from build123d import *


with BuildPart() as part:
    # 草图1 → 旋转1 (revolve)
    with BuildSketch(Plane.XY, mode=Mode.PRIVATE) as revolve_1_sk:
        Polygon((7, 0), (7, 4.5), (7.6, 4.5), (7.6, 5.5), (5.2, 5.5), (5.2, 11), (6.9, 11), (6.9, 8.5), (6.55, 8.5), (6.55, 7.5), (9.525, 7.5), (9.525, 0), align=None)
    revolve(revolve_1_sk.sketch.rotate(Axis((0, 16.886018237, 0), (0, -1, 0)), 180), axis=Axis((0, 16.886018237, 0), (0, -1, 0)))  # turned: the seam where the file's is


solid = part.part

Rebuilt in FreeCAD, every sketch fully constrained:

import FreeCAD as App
import Part
import Sketcher

V = App.Vector
Q = App.Units.Quantity

doc = App.newDocument("Part")
body = doc.addObject("PartDesign::Body", "Body")

sketch1 = body.newObject("Sketcher::SketchObject", "Sketch")
sketch1.AttachmentSupport = (doc.getObject("XY_Plane"), [""])
sketch1.MapMode = "FlatFace"
sketch1.addGeometry(Part.LineSegment(V(7, 4.5, 0), V(7, 0, 0)), False)
sketch1.addGeometry(Part.LineSegment(V(7, 0, 0), V(9.525, 0, 0)), False)
sketch1.addGeometry(Part.LineSegment(V(9.525, 0, 0), V(9.525, 7.5, 0)), False)
sketch1.addGeometry(Part.LineSegment(V(9.525, 7.5, 0), V(6.55, 7.5, 0)), False)
sketch1.addGeometry(Part.LineSegment(V(6.55, 7.5, 0), V(6.55, 8.5, 0)), False)
sketch1.addGeometry(Part.LineSegment(V(6.55, 8.5, 0), V(6.9, 8.5, 0)), False)
sketch1.addGeometry(Part.LineSegment(V(6.9, 8.5, 0), V(6.9, 11, 0)), False)
sketch1.addGeometry(Part.LineSegment(V(6.9, 11, 0), V(5.2, 11, 0)), False)
sketch1.addGeometry(Part.LineSegment(V(5.2, 11, 0), V(5.2, 5.5, 0)), False)
sketch1.addGeometry(Part.LineSegment(V(5.2, 5.5, 0), V(7.6, 5.5, 0)), False)
sketch1.addGeometry(Part.LineSegment(V(7.6, 5.5, 0), V(7.6, 4.5, 0)), False)
sketch1.addGeometry(Part.LineSegment(V(7.6, 4.5, 0), V(7, 4.5, 0)), False)
sketch1.addConstraint(Sketcher.Constraint("Coincident", 0, 2, 1, 1))
sketch1.addConstraint(Sketcher.Constraint("Coincident", 1, 2, 2, 1))
sketch1.addConstraint(Sketcher.Constraint("Coincident", 2, 2, 3, 1))
sketch1.addConstraint(Sketcher.Constraint("Coincident", 3, 2, 4, 1))
sketch1.addConstraint(Sketcher.Constraint("Coincident", 4, 2, 5, 1))
sketch1.addConstraint(Sketcher.Constraint("Coincident", 5, 2, 6, 1))
sketch1.addConstraint(Sketcher.Constraint("Coincident", 6, 2, 7, 1))
sketch1.addConstraint(Sketcher.Constraint("Coincident", 7, 2, 8, 1))
sketch1.addConstraint(Sketcher.Constraint("Coincident", 8, 2, 9, 1))
sketch1.addConstraint(Sketcher.Constraint("Coincident", 9, 2, 10, 1))
sketch1.addConstraint(Sketcher.Constraint("Coincident", 10, 2, 11, 1))
sketch1.addConstraint(Sketcher.Constraint("Coincident", 11, 2, 0, 1))
sketch1.addConstraint(Sketcher.Constraint("Vertical", 0))
sketch1.addConstraint(Sketcher.Constraint("Horizontal", 1))
sketch1.addConstraint(Sketcher.Constraint("Vertical", 2))
sketch1.addConstraint(Sketcher.Constraint("Horizontal", 3))
sketch1.addConstraint(Sketcher.Constraint("Vertical", 4))
sketch1.addConstraint(Sketcher.Constraint("Horizontal", 5))
sketch1.addConstraint(Sketcher.Constraint("Vertical", 6))
sketch1.addConstraint(Sketcher.Constraint("Horizontal", 7))
sketch1.addConstraint(Sketcher.Constraint("Vertical", 8))
sketch1.addConstraint(Sketcher.Constraint("Horizontal", 9))
sketch1.addConstraint(Sketcher.Constraint("Vertical", 10))
sketch1.addConstraint(Sketcher.Constraint("Horizontal", 11))
sketch1.addConstraint(Sketcher.Constraint("PointOnObject", 0, 2, -1))
sketch1.addConstraint(Sketcher.Constraint("Equal", 4, 10))
sketch1.addConstraint(Sketcher.Constraint("DistanceY", 4, 1, 4, 2, Q("1 mm")))
sketch1.addConstraint(Sketcher.Constraint("DistanceX", 7, 2, 7, 1, Q("1.7 mm")))
sketch1.addConstraint(Sketcher.Constraint("DistanceX", 9, 1, 9, 2, Q("2.4 mm")))
sketch1.addConstraint(Sketcher.Constraint("DistanceX", 11, 2, 11, 1, Q("0.6 mm")))
sketch1.addConstraint(Sketcher.Constraint("DistanceY", 0, 2, 0, 1, Q("4.5 mm")))
sketch1.addConstraint(Sketcher.Constraint("DistanceY", 2, 1, 2, 2, Q("7.5 mm")))
sketch1.addConstraint(Sketcher.Constraint("DistanceY", 6, 1, 6, 2, Q("2.5 mm")))
sketch1.addConstraint(Sketcher.Constraint("DistanceX", -1, 1, 0, 2, Q("7 mm")))
sketch1.addConstraint(Sketcher.Constraint("DistanceX", 5, 1, 5, 2, Q("0.35 mm")))
sketch1.addConstraint(Sketcher.Constraint("DistanceX", 1, 1, 1, 2, Q("2.525 mm")))
revolution = body.newObject("PartDesign::Revolution", "Revolution")
revolution.Profile = sketch1
revolution.ReferenceAxis = (sketch1, ["V_Axis"])
revolution.Angle = 360

doc.recompute()
